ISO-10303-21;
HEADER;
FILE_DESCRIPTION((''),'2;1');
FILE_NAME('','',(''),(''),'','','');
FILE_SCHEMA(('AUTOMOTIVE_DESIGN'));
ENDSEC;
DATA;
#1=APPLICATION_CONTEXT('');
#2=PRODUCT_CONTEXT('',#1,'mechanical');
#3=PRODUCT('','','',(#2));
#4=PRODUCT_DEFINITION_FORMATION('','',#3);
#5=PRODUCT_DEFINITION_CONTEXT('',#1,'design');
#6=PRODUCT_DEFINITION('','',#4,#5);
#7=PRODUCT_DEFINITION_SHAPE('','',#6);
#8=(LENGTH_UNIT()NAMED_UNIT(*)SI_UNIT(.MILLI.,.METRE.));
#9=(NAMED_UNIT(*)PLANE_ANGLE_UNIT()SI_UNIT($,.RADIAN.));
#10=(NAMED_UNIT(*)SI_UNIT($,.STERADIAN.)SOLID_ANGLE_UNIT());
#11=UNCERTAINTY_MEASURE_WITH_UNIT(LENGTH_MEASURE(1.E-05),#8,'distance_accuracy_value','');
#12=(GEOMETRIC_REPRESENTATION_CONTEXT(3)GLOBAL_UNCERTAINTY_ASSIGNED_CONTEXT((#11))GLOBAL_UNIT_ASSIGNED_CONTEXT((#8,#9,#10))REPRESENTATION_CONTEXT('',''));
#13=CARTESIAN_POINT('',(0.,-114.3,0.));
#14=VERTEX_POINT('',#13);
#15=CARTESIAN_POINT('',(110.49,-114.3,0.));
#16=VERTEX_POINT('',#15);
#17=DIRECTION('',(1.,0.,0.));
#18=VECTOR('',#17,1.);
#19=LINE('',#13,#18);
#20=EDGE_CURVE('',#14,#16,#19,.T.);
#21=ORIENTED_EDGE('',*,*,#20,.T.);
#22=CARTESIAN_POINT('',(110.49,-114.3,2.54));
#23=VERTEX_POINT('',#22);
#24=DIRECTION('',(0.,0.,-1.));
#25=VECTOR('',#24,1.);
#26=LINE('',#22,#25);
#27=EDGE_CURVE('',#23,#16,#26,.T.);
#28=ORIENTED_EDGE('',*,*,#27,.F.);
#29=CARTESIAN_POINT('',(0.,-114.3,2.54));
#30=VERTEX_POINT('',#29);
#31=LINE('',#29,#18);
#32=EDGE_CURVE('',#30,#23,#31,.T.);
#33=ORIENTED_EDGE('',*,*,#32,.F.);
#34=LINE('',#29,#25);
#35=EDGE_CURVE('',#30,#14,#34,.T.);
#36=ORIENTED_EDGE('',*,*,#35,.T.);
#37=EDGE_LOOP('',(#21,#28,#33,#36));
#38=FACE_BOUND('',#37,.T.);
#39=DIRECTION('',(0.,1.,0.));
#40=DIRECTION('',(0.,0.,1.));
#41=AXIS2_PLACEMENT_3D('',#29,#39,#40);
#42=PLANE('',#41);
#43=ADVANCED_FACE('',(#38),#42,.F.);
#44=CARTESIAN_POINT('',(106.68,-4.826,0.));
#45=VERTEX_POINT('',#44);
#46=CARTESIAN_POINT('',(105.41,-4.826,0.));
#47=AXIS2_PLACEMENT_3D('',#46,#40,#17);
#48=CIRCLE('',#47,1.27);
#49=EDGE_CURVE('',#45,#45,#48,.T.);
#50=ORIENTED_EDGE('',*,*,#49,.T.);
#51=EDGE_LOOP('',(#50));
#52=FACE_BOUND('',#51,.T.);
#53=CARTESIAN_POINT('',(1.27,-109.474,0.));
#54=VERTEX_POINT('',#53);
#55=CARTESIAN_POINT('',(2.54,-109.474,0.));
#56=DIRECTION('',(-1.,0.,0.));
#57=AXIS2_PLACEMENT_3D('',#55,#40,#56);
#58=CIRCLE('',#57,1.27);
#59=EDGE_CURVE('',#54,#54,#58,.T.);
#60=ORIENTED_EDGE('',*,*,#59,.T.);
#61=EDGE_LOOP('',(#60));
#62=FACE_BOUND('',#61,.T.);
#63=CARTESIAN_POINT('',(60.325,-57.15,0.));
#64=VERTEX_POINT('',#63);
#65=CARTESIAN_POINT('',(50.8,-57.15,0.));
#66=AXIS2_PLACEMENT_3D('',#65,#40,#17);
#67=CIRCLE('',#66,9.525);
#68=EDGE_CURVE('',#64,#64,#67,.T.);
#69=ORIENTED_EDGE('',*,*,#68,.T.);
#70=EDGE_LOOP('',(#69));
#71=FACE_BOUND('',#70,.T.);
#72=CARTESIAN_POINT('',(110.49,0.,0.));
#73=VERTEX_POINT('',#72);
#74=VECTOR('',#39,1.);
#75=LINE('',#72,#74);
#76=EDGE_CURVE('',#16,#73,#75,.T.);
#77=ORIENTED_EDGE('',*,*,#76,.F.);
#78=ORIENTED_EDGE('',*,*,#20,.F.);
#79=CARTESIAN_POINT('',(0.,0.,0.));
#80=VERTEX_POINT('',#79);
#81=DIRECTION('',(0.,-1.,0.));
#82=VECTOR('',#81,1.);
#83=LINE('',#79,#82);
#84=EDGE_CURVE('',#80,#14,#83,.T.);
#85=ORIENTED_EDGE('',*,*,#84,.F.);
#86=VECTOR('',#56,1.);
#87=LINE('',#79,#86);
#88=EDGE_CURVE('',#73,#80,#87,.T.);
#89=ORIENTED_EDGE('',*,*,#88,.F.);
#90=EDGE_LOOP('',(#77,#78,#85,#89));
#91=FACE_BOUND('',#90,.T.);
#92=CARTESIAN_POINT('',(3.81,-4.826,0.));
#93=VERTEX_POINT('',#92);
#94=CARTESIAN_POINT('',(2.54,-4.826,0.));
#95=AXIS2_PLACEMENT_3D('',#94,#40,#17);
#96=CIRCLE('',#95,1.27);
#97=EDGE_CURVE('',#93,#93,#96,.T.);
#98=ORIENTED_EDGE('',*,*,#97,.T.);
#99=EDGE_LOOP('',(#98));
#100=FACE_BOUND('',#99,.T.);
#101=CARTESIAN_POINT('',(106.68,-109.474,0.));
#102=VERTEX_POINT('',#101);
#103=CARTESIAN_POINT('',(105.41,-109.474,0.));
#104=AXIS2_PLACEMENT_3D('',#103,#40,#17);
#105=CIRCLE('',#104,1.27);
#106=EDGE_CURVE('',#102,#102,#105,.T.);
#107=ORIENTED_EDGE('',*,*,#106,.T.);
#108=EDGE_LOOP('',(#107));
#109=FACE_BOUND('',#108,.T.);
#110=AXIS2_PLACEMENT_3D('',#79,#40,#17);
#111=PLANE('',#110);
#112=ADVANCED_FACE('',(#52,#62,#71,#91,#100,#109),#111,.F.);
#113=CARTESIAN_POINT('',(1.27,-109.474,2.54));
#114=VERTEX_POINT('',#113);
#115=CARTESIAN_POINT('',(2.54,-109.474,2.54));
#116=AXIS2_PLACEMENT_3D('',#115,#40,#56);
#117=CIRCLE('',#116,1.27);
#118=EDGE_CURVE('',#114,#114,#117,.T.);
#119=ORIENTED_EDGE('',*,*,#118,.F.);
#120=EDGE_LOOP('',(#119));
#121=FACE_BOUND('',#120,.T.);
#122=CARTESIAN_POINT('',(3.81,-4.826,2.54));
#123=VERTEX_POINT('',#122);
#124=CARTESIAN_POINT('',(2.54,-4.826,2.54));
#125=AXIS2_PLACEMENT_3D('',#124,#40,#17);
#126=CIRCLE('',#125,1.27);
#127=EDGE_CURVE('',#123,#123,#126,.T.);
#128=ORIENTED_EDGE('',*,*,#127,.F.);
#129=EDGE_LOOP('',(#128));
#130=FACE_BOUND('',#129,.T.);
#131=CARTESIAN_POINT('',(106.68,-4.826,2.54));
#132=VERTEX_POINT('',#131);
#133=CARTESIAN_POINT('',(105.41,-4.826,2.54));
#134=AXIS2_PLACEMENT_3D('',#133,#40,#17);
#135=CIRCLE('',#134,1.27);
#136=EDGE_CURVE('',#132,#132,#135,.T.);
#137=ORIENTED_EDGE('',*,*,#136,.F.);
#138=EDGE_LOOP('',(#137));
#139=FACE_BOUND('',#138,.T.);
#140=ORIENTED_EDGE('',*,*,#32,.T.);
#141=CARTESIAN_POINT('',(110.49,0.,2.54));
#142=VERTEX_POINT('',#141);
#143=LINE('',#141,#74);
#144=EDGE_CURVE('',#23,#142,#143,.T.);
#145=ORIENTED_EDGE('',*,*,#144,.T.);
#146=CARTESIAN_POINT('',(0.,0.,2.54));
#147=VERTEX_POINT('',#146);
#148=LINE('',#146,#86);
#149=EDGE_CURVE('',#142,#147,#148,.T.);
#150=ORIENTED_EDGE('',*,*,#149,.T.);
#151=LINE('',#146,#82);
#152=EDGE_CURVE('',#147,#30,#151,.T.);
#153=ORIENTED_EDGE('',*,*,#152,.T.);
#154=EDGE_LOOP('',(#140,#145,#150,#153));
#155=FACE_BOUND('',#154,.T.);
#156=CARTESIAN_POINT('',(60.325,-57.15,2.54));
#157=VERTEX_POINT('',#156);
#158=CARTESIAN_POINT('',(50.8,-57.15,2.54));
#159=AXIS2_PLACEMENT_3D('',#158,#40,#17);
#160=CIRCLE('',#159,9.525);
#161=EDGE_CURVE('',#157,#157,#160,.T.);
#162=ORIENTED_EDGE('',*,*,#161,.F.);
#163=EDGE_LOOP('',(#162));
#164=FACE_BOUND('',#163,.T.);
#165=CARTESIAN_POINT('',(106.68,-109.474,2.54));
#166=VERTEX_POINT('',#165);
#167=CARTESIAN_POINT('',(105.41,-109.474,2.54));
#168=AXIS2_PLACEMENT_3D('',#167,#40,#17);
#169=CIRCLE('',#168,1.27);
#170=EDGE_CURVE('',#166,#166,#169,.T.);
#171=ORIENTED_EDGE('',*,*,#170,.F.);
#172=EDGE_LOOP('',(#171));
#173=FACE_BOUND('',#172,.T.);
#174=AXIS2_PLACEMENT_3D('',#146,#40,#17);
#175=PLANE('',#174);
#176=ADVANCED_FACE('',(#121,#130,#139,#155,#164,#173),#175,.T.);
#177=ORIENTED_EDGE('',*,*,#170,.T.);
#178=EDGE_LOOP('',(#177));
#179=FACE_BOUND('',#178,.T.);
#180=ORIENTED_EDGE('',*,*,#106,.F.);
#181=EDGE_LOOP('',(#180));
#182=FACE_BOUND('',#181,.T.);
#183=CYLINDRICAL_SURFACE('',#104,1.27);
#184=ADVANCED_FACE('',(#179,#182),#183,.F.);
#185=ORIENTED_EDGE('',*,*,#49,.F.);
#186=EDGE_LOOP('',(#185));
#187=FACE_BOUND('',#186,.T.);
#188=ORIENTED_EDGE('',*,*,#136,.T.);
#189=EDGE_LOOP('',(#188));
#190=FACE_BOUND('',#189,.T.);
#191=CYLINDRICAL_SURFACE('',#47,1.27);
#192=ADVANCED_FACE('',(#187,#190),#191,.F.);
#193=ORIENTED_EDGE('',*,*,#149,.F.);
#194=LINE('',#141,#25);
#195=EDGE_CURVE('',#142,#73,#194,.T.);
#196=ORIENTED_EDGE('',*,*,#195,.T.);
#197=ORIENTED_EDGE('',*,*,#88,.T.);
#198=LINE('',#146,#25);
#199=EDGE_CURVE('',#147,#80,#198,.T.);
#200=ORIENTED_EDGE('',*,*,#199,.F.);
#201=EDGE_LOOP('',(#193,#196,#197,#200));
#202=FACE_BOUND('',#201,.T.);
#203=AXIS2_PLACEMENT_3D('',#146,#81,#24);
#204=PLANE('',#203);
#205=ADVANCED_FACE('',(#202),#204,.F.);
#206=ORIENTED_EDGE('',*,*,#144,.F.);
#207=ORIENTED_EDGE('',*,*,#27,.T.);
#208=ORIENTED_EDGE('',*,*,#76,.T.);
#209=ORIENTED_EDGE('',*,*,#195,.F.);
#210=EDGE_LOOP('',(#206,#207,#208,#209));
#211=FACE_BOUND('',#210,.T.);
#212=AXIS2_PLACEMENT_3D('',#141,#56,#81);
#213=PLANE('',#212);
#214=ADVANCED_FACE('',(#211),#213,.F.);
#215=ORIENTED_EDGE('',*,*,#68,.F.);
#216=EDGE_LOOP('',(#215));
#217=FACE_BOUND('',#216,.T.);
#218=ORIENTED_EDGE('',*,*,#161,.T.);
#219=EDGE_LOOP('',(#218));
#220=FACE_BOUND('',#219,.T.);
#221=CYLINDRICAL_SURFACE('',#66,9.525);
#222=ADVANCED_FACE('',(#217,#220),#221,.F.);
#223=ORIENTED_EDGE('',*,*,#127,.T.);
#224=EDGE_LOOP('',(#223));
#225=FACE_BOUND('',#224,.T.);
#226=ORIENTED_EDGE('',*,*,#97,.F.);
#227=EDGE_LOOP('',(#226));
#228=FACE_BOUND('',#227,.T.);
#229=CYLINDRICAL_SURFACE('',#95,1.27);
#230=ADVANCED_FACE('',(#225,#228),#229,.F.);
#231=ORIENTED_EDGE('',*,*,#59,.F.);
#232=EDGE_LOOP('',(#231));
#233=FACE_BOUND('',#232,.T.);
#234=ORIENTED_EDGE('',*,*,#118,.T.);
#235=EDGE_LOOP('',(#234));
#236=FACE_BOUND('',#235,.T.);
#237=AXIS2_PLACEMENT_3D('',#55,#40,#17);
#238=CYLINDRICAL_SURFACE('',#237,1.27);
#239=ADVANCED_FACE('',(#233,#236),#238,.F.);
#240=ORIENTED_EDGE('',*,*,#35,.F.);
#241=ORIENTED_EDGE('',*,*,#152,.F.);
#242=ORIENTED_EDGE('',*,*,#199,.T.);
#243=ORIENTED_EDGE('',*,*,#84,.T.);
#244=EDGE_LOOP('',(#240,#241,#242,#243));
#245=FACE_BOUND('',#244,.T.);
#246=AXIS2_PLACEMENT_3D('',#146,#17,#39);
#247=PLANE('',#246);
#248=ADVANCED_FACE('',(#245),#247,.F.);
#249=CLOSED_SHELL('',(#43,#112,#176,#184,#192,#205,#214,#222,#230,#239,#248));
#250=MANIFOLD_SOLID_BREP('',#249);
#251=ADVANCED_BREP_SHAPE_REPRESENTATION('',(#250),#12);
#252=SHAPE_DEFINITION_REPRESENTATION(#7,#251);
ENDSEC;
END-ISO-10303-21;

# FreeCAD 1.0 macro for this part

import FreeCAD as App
import Part
import Sketcher
Q = App.Units.Quantity


def add_polygon(sketch, points):
    """Adds a closed chain of lines whose ends are joined by coincident constraints."""
    first, n = sketch.GeometryCount, len(points)
    for a, b in zip(points, points[1:] + points[:1]):
        sketch.addGeometry(Part.LineSegment(App.Vector(*a, 0), App.Vector(*b, 0)), False)
    for i in range(n):
        sketch.addConstraint(Sketcher.Constraint("Coincident", first + i, 2, first + (i + 1) % n, 1))

doc = App.newDocument("Part")
body = doc.addObject("PartDesign::Body", "Body")

sketch1 = body.newObject("Sketcher::SketchObject", "Sketch")
sketch1.AttachmentSupport = (doc.getObject("XY_Plane"), [""])
sketch1.MapMode = "FlatFace"
add_polygon(sketch1, [(0, 0), (0, -114.3), (110.49, -114.3), (110.49, 0)])
sketch1.addConstraint(Sketcher.Constraint("Vertical", 0))
sketch1.addConstraint(Sketcher.Constraint("Horizontal", 1))
sketch1.addConstraint(Sketcher.Constraint("Vertical", 2))
sketch1.addConstraint(Sketcher.Constraint("Horizontal", 3))
sketch1.addConstraint(Sketcher.Constraint("Coincident", 3, 2, -1, 1))
sketch1.addConstraint(Sketcher.Constraint("DistanceY", 0, 2, 0, 1, Q("4.5 in")))
sketch1.addConstraint(Sketcher.Constraint("DistanceX", 1, 1, 1, 2, Q("4.35 in")))
pad1 = body.newObject("PartDesign::Pad", "Pad")
pad1.Profile = sketch1
pad1.Length = Q("0.1 in")

sketch2 = body.newObject("Sketcher::SketchObject", "Sketch001")
sketch2.AttachmentSupport = (doc.getObject("XY_Plane"), [""])
sketch2.MapMode = "FlatFace"
sketch2.AttachmentOffset = App.Placement(App.Vector(0, 0, 0.1 * 25.4), App.Rotation())
sketch2.addGeometry(Part.Circle(App.Vector(50.8, -57.15, 0), App.Vector(0, 0, 1), 9.525), False)
sketch2.addConstraint(Sketcher.Constraint("Diameter", 0, Q("0.75 in")))
sketch2.addConstraint(Sketcher.Constraint("DistanceX", -1, 1, 0, 3, Q("2 in")))
sketch2.addConstraint(Sketcher.Constraint("DistanceY", 0, 3, -1, 1, Q("2.25 in")))
pocket1 = body.newObject("PartDesign::Pocket", "Pocket")
pocket1.Profile = sketch2
pocket1.Length = Q("0.1 in")

sketch3 = body.newObject("Sketcher::SketchObject", "Sketch002")
sketch3.AttachmentSupport = (doc.getObject("XY_Plane"), [""])
sketch3.MapMode = "FlatFace"
sketch3.AttachmentOffset = App.Placement(App.Vector(0, 0, 0.1 * 25.4), App.Rotation())
sketch3.addGeometry(Part.Circle(App.Vector(2.54, -4.826, 0), App.Vector(0, 0, 1), 1.27), False)
sketch3.addGeometry(Part.Circle(App.Vector(2.54, -109.474, 0), App.Vector(0, 0, 1), 1.27), False)
sketch3.addGeometry(Part.Circle(App.Vector(105.41, -4.826, 0), App.Vector(0, 0, 1), 1.27), False)
sketch3.addGeometry(Part.Circle(App.Vector(105.41, -109.474, 0), App.Vector(0, 0, 1), 1.27), False)
sketch3.addConstraint(Sketcher.Constraint("Equal", 0, 1))
sketch3.addConstraint(Sketcher.Constraint("Equal", 1, 2))
sketch3.addConstraint(Sketcher.Constraint("Equal", 2, 3))
sketch3.addConstraint(Sketcher.Constraint("Horizontal", 0, 3, 2, 3))
sketch3.addConstraint(Sketcher.Constraint("Horizontal", 1, 3, 3, 3))
sketch3.addConstraint(Sketcher.Constraint("Vertical", 0, 3, 1, 3))
sketch3.addConstraint(Sketcher.Constraint("Vertical", 2, 3, 3, 3))
sketch3.addConstraint(Sketcher.Constraint("Diameter", 0, Q("0.1 in")))
sketch3.addConstraint(Sketcher.Constraint("DistanceX", -1, 1, 0, 3, Q("0.1 in")))
sketch3.addConstraint(Sketcher.Constraint("DistanceY", 0, 3, -1, 1, Q("0.19 in")))
sketch3.addConstraint(Sketcher.Constraint("DistanceY", 1, 3, -1, 1, Q("4.31 in")))
sketch3.addConstraint(Sketcher.Constraint("DistanceX", -1, 1, 2, 3, Q("4.15 in")))
pocket2 = body.newObject("PartDesign::Pocket", "Pocket001")
pocket2.Profile = sketch3
pocket2.Type = "ThroughAll"

doc.recompute()
